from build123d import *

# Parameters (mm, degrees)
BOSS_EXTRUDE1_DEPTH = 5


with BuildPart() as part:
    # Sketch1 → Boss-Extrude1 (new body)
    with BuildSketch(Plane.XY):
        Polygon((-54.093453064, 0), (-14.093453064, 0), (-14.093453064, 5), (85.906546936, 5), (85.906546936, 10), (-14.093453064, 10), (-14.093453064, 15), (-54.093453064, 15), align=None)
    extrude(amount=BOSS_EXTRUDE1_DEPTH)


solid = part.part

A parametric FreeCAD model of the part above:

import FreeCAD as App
import Part
import Sketcher
from FreeCAD import Vector
Q = App.Units.Quantity


def add_polygon(sketch, points):
    """Adds a closed chain of lines whose ends are joined by coincident constraints."""
    first, n = sketch.GeometryCount, len(points)
    for a, b in zip(points, points[1:] + points[:1]):
        sketch.addGeometry(Part.LineSegment(App.Vector(*a, 0), App.Vector(*b, 0)), False)
    for i in range(n):
        sketch.addConstraint(Sketcher.Constraint("Coincident", first + i, 2, first + (i + 1) % n, 1))

doc = App.newDocument("Part")
body = doc.addObject("PartDesign::Body", "Body")

sketch1 = body.newObject("Sketcher::SketchObject", "Sketch")
sketch1.AttachmentSupport = (doc.getObject("XY_Plane"), [""])
sketch1.MapMode = "FlatFace"
add_polygon(sketch1, [(-54, 0), (-14, 0), (-14, 5), (86, 5), (86, 10), (-14, 10), (-14, 15), (-54, 15)])
sketch1.addConstraint([
    Sketcher.Constraint("Horizontal", 0),
    Sketcher.Constraint("Vertical", 1),
    Sketcher.Constraint("Horizontal", 2),
    Sketcher.Constraint("Vertical", 3),
    Sketcher.Constraint("Horizontal", 4),
    Sketcher.Constraint("Vertical", 5),
    Sketcher.Constraint("Horizontal", 6),
    Sketcher.Constraint("Vertical", 7),
    Sketcher.Constraint("PointOnObject", 0, 2, -1),
    Sketcher.Constraint("Vertical", 1, 2, 4, 2),
    Sketcher.Constraint("Equal", 1, 3),
    Sketcher.Constraint("Equal", 3, 5),
    Sketcher.Constraint("DistanceX", 0, 1, 0, 2, Q("40 mm")),
    Sketcher.Constraint("DistanceX", 2, 1, 2, 2, Q("100 mm")),
    Sketcher.Constraint("DistanceY", 1, 1, 1, 2, Q("5 mm")),
    Sketcher.Constraint("DistanceX", 0, 2, -1, 1, Q("14.093453 mm")),
])
pad1 = body.newObject("PartDesign::Pad", "Pad")
pad1.Profile = sketch1
pad1.Length = 5

doc.recompute()
